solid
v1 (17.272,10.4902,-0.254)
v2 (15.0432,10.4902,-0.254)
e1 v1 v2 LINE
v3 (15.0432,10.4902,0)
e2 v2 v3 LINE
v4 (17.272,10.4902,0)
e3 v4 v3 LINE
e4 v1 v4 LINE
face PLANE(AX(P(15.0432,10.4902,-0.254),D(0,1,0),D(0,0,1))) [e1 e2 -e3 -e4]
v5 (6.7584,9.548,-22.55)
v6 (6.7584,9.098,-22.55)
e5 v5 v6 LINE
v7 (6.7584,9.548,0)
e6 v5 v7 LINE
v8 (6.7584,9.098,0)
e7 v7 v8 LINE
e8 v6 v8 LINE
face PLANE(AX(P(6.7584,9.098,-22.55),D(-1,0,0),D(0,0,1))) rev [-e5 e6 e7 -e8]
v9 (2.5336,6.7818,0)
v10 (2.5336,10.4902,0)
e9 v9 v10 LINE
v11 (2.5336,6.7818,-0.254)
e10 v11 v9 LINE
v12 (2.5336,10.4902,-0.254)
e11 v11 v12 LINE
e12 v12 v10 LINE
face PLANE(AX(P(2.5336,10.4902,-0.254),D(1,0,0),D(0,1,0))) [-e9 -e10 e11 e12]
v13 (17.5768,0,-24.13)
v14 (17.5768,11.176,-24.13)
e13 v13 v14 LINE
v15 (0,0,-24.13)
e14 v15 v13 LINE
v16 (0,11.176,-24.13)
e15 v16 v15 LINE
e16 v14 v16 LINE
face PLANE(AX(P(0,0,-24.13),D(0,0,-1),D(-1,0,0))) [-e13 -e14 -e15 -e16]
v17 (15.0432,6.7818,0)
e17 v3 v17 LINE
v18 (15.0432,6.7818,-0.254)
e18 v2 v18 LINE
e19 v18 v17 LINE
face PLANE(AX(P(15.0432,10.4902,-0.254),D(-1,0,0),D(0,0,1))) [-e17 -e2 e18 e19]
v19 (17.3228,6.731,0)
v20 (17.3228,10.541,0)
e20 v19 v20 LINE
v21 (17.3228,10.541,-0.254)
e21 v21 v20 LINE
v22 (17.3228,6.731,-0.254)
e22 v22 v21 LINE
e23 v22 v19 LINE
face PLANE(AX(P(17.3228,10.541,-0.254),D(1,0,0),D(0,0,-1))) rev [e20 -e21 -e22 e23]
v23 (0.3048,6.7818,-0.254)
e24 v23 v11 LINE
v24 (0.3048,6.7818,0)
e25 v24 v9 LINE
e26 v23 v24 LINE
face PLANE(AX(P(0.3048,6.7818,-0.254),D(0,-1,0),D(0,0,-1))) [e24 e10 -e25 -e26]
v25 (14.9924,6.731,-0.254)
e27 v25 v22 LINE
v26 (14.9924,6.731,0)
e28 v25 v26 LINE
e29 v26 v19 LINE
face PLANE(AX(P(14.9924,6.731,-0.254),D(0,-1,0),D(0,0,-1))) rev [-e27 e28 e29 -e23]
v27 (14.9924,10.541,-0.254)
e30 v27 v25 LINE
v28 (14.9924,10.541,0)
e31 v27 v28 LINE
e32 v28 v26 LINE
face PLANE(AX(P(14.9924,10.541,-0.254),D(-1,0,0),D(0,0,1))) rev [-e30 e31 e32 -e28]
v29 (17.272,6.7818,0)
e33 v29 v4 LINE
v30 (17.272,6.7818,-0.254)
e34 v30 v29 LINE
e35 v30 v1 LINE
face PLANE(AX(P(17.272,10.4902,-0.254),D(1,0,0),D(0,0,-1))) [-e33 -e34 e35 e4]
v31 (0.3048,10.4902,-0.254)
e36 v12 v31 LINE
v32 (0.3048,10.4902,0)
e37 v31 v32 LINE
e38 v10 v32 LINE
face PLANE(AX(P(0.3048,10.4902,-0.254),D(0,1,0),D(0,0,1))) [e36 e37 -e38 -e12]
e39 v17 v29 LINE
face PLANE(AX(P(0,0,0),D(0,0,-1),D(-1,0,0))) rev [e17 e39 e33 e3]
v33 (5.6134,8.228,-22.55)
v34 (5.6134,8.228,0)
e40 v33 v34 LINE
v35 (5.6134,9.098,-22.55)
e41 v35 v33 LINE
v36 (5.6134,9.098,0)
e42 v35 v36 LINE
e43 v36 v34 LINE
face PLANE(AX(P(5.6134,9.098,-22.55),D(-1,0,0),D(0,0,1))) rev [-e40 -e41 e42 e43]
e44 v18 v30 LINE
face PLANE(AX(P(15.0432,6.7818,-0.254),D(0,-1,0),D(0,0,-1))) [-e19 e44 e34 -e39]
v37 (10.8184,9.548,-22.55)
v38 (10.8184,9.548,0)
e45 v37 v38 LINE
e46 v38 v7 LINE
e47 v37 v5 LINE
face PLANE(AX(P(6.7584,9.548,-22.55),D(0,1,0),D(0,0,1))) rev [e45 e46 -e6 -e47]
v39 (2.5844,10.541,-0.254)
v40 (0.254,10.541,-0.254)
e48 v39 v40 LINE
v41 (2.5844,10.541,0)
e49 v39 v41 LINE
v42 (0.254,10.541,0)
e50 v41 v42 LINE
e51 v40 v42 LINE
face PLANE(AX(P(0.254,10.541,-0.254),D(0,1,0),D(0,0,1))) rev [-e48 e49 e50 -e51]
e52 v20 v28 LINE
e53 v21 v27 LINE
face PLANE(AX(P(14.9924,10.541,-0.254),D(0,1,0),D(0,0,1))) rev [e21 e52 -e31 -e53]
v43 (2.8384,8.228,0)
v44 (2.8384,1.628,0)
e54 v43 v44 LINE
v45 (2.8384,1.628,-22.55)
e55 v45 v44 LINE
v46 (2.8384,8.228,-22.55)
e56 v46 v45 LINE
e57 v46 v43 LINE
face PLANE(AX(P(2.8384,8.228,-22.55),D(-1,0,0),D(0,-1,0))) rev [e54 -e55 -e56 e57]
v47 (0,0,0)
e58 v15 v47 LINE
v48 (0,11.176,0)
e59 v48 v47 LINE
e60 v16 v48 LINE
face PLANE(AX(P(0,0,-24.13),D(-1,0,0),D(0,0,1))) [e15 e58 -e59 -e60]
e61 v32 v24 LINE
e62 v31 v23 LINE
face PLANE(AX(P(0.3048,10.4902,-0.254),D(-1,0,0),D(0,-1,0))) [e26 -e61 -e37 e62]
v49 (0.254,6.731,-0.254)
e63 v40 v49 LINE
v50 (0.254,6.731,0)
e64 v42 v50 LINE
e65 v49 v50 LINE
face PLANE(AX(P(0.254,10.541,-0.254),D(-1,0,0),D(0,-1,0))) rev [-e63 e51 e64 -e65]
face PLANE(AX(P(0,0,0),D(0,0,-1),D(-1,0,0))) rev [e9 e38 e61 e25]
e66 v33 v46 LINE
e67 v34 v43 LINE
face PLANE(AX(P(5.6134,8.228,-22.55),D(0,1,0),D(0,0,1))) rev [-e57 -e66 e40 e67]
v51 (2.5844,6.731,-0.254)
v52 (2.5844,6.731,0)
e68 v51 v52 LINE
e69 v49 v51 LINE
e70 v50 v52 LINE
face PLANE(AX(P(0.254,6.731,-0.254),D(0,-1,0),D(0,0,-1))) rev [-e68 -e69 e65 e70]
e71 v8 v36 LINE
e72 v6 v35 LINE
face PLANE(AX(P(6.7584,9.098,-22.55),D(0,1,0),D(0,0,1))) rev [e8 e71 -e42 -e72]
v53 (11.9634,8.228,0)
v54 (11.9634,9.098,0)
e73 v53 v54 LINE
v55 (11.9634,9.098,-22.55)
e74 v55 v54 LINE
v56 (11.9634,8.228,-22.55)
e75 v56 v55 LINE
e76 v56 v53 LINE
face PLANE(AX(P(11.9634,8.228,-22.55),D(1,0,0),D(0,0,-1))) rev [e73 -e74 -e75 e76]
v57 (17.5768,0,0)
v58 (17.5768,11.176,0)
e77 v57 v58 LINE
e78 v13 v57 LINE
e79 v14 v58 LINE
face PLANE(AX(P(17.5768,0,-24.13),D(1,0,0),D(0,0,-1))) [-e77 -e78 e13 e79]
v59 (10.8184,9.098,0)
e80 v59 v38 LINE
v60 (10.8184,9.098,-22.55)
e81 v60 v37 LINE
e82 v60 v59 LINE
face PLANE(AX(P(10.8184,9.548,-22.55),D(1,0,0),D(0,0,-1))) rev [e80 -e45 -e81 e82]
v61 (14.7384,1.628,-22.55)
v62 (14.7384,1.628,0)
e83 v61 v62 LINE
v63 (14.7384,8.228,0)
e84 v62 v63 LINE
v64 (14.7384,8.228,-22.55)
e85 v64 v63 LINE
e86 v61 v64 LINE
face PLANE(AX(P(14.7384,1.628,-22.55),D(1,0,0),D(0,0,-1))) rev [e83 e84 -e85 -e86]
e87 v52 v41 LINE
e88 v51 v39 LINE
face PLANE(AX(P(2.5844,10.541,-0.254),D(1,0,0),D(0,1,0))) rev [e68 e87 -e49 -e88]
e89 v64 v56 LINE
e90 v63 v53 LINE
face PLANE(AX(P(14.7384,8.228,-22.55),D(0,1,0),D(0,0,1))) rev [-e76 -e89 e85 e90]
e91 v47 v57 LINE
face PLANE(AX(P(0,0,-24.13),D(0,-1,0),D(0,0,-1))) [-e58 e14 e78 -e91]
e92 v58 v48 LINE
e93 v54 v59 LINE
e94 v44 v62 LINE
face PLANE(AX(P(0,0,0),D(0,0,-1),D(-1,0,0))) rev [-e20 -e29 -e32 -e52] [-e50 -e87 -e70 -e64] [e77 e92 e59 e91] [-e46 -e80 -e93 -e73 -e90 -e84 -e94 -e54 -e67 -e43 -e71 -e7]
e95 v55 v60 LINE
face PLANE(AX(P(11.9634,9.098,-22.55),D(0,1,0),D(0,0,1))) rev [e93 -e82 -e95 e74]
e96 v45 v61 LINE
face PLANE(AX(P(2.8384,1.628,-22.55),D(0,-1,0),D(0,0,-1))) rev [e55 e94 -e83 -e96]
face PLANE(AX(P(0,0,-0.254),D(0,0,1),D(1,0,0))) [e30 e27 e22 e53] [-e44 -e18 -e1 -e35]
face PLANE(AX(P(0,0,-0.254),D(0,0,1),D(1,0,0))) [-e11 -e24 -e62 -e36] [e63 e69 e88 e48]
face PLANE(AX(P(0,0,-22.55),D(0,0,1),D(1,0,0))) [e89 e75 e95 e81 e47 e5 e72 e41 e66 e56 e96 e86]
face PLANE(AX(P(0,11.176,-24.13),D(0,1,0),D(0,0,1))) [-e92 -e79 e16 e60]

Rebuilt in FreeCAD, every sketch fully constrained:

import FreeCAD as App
import Part
import Sketcher

V = App.Vector
Q = App.Units.Quantity


def add_polygon(sketch, points):
    """Adds a closed chain of lines whose ends are joined by coincident constraints."""
    first, n = sketch.GeometryCount, len(points)
    for a, b in zip(points, points[1:] + points[:1]):
        sketch.addGeometry(Part.LineSegment(App.Vector(*a, 0), App.Vector(*b, 0)), False)
    for i in range(n):
        sketch.addConstraint(Sketcher.Constraint("Coincident", first + i, 2, first + (i + 1) % n, 1))

doc = App.newDocument("Part")
params = doc.addObject("Spreadsheet::Sheet", "Params")
for row, (alias, value) in enumerate([
    ("sketch1_height", "0.44 in"),
    ("sketch1_width", "0.692 in"),
    ("pad1_length", "0.95 in"),
    ("pocket1_length", "22.55 mm"),
    ("sketch3_height", "0.15 in"),
    ("sketch3_height2", "0.146 in"),
    ("pocket2_length", "0.01 in"),
], start=1):
    params.set(f"A{row}", alias)
    params.set(f"B{row}", "=" + value)
    params.setAlias(f"B{row}", alias)

body = doc.addObject("PartDesign::Body", "Body")

# Sketch on XY plane
sketch1 = body.newObject("Sketcher::SketchObject", "Sketch")
sketch1.AttachmentSupport = (doc.getObject("XY_Plane"), [""])
sketch1.MapMode = "FlatFace"
add_polygon(sketch1, [(0, 11), (0, 0), (18, 0), (18, 11)])  # lines 0-3
sketch1.addConstraint(Sketcher.Constraint("Vertical", 0))
sketch1.addConstraint(Sketcher.Constraint("Horizontal", 1))
sketch1.addConstraint(Sketcher.Constraint("Vertical", 2))
sketch1.addConstraint(Sketcher.Constraint("Horizontal", 3))
sketch1.addConstraint(Sketcher.Constraint("Coincident", 0, 2, -1, 1))
sketch1.addConstraint(Sketcher.Constraint("DistanceY", 0, 2, 0, 1, Q("0.44 in")))
sketch1.addConstraint(Sketcher.Constraint("DistanceX", 1, 1, 1, 2, Q("0.692 in")))
sketch1.setExpression("Constraints[9]", "Params.sketch1_height")
sketch1.setExpression("Constraints[10]", "Params.sketch1_width")
pad1 = body.newObject("PartDesign::Pad", "Pad")
pad1.Profile = sketch1
pad1.setExpression("Length", "Params.pad1_length")
pad1.Reversed = True

# Sketch on XY plane
sketch2 = body.newObject("Sketcher::SketchObject", "Sketch001")
sketch2.AttachmentSupport = (doc.getObject("XY_Plane"), [""])
sketch2.MapMode = "FlatFace"
add_polygon(sketch2, [(2.84, 1.63), (14.74, 1.63), (14.74, 8.23), (11.96, 8.23), (11.96, 9.1), (10.82, 9.1), (10.82, 9.55), (6.76, 9.55), (6.76, 9.1), (5.61, 9.1), (5.61, 8.23), (2.84, 8.23)])  # lines 0-11
sketch2.addConstraint(Sketcher.Constraint("Horizontal", 0))
sketch2.addConstraint(Sketcher.Constraint("Vertical", 1))
sketch2.addConstraint(Sketcher.Constraint("Horizontal", 2))
sketch2.addConstraint(Sketcher.Constraint("Vertical", 3))
sketch2.addConstraint(Sketcher.Constraint("Horizontal", 4))
sketch2.addConstraint(Sketcher.Constraint("Vertical", 5))
sketch2.addConstraint(Sketcher.Constraint("Horizontal", 6))
sketch2.addConstraint(Sketcher.Constraint("Vertical", 7))
sketch2.addConstraint(Sketcher.Constraint("Horizontal", 8))
sketch2.addConstraint(Sketcher.Constraint("Vertical", 9))
sketch2.addConstraint(Sketcher.Constraint("Horizontal", 10))
sketch2.addConstraint(Sketcher.Constraint("Vertical", 11))
sketch2.addConstraint(Sketcher.Constraint("Horizontal", 4, 2, 7, 2))
sketch2.addConstraint(Sketcher.Constraint("Horizontal", 2, 2, 9, 2))
sketch2.addConstraint(Sketcher.Constraint("Equal", 4, 8))
sketch2.addConstraint(Sketcher.Constraint("Equal", 2, 10))
sketch2.addConstraint(Sketcher.Constraint("DistanceX", 8, 2, 3, 2, Q("0.25 in")))
sketch2.addConstraint(Sketcher.Constraint("DistanceX", -1, 1, 2, 2, Q("0.471 in")))
sketch2.addConstraint(Sketcher.Constraint("DistanceX", 0, 1, 0, 2, 11.9))
sketch2.addConstraint(Sketcher.Constraint("DistanceX", 4, 2, 4, 1, 1.145))
sketch2.addConstraint(Sketcher.Constraint("DistanceY", 1, 1, 1, 2, 6.6))
sketch2.addConstraint(Sketcher.Constraint("DistanceY", 3, 1, 3, 2, 0.87))
sketch2.addConstraint(Sketcher.Constraint("DistanceY", 5, 1, 5, 2, 0.45))
sketch2.addConstraint(Sketcher.Constraint("DistanceY", -1, 1, 0, 2, 1.628))
pocket1 = body.newObject("PartDesign::Pocket", "Pocket")
pocket1.Profile = sketch2
pocket1.setExpression("Length", "Params.pocket1_length")

# Sketch on XY plane
sketch3 = body.newObject("Sketcher::SketchObject", "Sketch002")
sketch3.AttachmentSupport = (doc.getObject("XY_Plane"), [""])
sketch3.MapMode = "FlatFace"
add_polygon(sketch3, [(0.3, 10.5), (0.3, 6.7), (2.6, 6.7), (2.6, 10.5)])  # lines 0-3
add_polygon(sketch3, [(2.5, 6.8), (0.3, 6.8), (0.3, 10.5), (2.5, 10.5)])  # lines 4-7
add_polygon(sketch3, [(15, 10.5), (15, 6.7), (17.3, 6.7), (17.3, 10.5)])  # lines 8-11
add_polygon(sketch3, [(17.3, 6.8), (15, 6.8), (15, 10.5), (17.3, 10.5)])  # lines 12-15
sketch3.addConstraint(Sketcher.Constraint("Vertical", 0))
sketch3.addConstraint(Sketcher.Constraint("Horizontal", 1))
sketch3.addConstraint(Sketcher.Constraint("Vertical", 2))
sketch3.addConstraint(Sketcher.Constraint("Horizontal", 3))
sketch3.addConstraint(Sketcher.Constraint("Horizontal", 4))
sketch3.addConstraint(Sketcher.Constraint("Vertical", 5))
sketch3.addConstraint(Sketcher.Constraint("Horizontal", 6))
sketch3.addConstraint(Sketcher.Constraint("Vertical", 7))
sketch3.addConstraint(Sketcher.Constraint("Vertical", 8))
sketch3.addConstraint(Sketcher.Constraint("Horizontal", 9))
sketch3.addConstraint(Sketcher.Constraint("Vertical", 10))
sketch3.addConstraint(Sketcher.Constraint("Horizontal", 11))
sketch3.addConstraint(Sketcher.Constraint("Horizontal", 12))
sketch3.addConstraint(Sketcher.Constraint("Vertical", 13))
sketch3.addConstraint(Sketcher.Constraint("Horizontal", 14))
sketch3.addConstraint(Sketcher.Constraint("Vertical", 15))
sketch3.addConstraint(Sketcher.Constraint("Horizontal", 1, 2, 8, 2))
sketch3.addConstraint(Sketcher.Constraint("Horizontal", 3, 2, 10, 2))
sketch3.addConstraint(Sketcher.Constraint("Horizontal", 7, 2, 12, 2))
sketch3.addConstraint(Sketcher.Constraint("Horizontal", 6, 2, 13, 2))
sketch3.addConstraint(Sketcher.Constraint("Equal", 3, 9))
sketch3.addConstraint(Sketcher.Constraint("Equal", 6, 12))
sketch3.addConstraint(Sketcher.Constraint("DistanceY", 0, 2, 0, 1, Q("0.15 in")))
sketch3.addConstraint(Sketcher.Constraint("DistanceY", 5, 1, 5, 2, Q("0.146 in")))
sketch3.addConstraint(Sketcher.Constraint("DistanceX", -1, 1, 0, 2, Q("0.01 in")))
sketch3.addConstraint(Sketcher.Constraint("DistanceX", -1, 1, 14, 2, Q("0.68 in")))
sketch3.addConstraint(Sketcher.Constraint("DistanceY", -1, 1, 0, 2, Q("0.265 in")))
sketch3.addConstraint(Sketcher.Constraint("DistanceX", -1, 1, 4, 2, Q("0.012 in")))
sketch3.addConstraint(Sketcher.Constraint("DistanceY", -1, 1, 4, 2, Q("0.267 in")))
sketch3.addConstraint(Sketcher.Constraint("DistanceX", -1, 1, 9, 2, Q("0.682 in")))
sketch3.addConstraint(Sketcher.Constraint("DistanceX", 6, 2, 2, 2, Q("0.002 in")))
sketch3.addConstraint(Sketcher.Constraint("DistanceX", 1, 1, 1, 2, 2.3304))
sketch3.setExpression("Constraints[38]", "Params.sketch3_height")
sketch3.setExpression("Constraints[39]", "Params.sketch3_height2")
pocket2 = body.newObject("PartDesign::Pocket", "Pocket001")
pocket2.Profile = sketch3
pocket2.setExpression("Length", "Params.pocket2_length")

doc.recompute()
